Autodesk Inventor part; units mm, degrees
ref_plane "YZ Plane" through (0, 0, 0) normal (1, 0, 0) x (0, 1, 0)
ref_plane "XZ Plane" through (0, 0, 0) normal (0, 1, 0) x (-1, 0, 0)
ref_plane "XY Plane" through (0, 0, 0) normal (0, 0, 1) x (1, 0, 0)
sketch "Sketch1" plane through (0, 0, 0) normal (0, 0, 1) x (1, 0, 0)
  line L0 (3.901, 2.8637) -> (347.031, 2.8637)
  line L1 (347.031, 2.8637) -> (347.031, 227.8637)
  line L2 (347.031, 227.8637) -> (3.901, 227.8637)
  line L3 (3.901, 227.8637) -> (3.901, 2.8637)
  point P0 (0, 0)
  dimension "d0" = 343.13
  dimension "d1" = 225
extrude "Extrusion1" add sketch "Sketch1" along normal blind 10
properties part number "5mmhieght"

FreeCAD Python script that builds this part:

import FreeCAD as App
import Part
import Sketcher
from FreeCAD import Vector
Q = App.Units.Quantity

doc = App.newDocument("Part")
body = doc.addObject("PartDesign::Body", "Body")

sketch1 = body.newObject("Sketcher::SketchObject", "Sketch")
sketch1.AttachmentSupport = (doc.getObject("XY_Plane"), [""])
sketch1.MapMode = "FlatFace"
sketch1.addGeometry([
    Part.LineSegment(Vector(3.901, 227.8637, 0), Vector(3.901, 2.8637, 0)),
    Part.LineSegment(Vector(3.901, 2.8637, 0), Vector(347.031, 2.8637, 0)),
    Part.LineSegment(Vector(347.031, 2.8637, 0), Vector(347.031, 227.8637, 0)),
    Part.LineSegment(Vector(347.031, 227.8637, 0), Vector(3.901, 227.8637, 0)),
], False)
sketch1.addConstraint([
    Sketcher.Constraint("Coincident", 0, 2, 1, 1),
    Sketcher.Constraint("Coincident", 1, 2, 2, 1),
    Sketcher.Constraint("Coincident", 2, 2, 3, 1),
    Sketcher.Constraint("Coincident", 3, 2, 0, 1),
    Sketcher.Constraint("Vertical", 0),
    Sketcher.Constraint("Horizontal", 1),
    Sketcher.Constraint("Vertical", 2),
    Sketcher.Constraint("Horizontal", 3),
    Sketcher.Constraint("DistanceY", 0, 2, 0, 1, Q("225 mm")),
    Sketcher.Constraint("DistanceX", 1, 1, 1, 2, Q("343.13 mm")),
    Sketcher.Constraint("DistanceX", -1, 1, 0, 2, Q("3.901 mm")),
    Sketcher.Constraint("DistanceY", -1, 1, 0, 2, Q("2.8637 mm")),
])
pad1 = body.newObject("PartDesign::Pad", "Pad")
pad1.Profile = sketch1
pad1.Length = 10

doc.recompute()
